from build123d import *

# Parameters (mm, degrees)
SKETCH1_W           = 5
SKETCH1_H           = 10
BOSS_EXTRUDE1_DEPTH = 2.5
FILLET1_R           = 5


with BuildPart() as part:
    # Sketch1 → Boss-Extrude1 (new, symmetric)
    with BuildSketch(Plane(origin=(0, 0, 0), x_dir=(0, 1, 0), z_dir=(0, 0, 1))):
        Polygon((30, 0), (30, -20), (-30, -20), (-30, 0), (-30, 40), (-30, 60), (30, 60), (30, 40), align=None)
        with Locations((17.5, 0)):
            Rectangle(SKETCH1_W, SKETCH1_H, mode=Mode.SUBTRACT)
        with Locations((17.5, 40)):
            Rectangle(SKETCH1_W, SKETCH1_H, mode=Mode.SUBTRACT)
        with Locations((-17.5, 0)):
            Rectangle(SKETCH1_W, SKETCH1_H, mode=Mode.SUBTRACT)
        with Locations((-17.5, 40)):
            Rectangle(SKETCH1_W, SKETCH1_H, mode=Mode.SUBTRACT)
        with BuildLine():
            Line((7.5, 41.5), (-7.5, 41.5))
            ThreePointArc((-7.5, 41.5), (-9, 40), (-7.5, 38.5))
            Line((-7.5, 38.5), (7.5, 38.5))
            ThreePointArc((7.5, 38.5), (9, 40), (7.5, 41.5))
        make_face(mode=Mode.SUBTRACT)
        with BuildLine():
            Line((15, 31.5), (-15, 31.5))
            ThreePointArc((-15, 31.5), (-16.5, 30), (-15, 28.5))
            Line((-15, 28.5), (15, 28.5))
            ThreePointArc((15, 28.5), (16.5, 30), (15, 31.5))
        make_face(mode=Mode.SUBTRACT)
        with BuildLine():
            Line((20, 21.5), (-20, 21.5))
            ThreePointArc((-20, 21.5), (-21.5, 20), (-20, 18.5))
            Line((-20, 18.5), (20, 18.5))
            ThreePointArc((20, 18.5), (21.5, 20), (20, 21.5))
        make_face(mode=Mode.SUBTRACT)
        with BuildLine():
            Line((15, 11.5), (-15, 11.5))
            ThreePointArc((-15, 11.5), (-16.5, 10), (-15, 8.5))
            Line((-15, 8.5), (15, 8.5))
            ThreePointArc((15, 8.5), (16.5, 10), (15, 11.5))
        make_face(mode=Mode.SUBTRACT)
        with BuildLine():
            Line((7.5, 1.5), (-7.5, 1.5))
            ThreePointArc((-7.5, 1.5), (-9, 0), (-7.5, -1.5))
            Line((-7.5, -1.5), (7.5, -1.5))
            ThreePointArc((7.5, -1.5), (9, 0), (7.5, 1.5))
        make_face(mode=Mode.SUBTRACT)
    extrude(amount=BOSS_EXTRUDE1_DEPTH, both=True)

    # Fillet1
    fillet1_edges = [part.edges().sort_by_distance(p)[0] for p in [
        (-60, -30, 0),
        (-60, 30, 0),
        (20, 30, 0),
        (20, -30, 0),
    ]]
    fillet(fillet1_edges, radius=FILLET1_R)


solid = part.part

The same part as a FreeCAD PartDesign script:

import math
import FreeCAD as App
import Part
import Sketcher
from FreeCAD import Vector
Q = App.Units.Quantity


def edges_at(feature, points):
    """Names of the edges that pass closest to the given points."""
    edges = feature.Shape.Edges
    near = lambda p: min(range(len(edges)), key=lambda i: edges[i].distToShape(Part.Vertex(*p))[0])
    return sorted({f"Edge{near(p) + 1}" for p in points})

doc = App.newDocument("Part")
body = doc.addObject("PartDesign::Body", "Body")

sketch1 = doc.addObject("Sketcher::SketchObject", "Sketch")
body.addObject(sketch1)
sketch1.AttachmentSupport = (doc.XY_Plane, [""])
sketch1.MapMode = "FlatFace"
sketch1.addGeometry([
    Part.LineSegment(Vector(20, 30, 0), Vector(-60, 30, 0)),
    Part.LineSegment(Vector(-60, 30, 0), Vector(-60, -30, 0)),
    Part.LineSegment(Vector(-60, -30, 0), Vector(20, -30, 0)),
    Part.LineSegment(Vector(20, -30, 0), Vector(20, 30, 0)),
    Part.LineSegment(Vector(5, 15, 0), Vector(-5, 15, 0)),
    Part.LineSegment(Vector(-5, 15, 0), Vector(-5, 20, 0)),
    Part.LineSegment(Vector(-5, 20, 0), Vector(5, 20, 0)),
    Part.LineSegment(Vector(5, 20, 0), Vector(5, 15, 0)),
    Part.ArcOfCircle(Part.Circle(Vector(0, 7.5, 0), Vector(0, 0, 1), 1.5), math.radians(0), math.radians(180)),
    Part.LineSegment(Vector(1.5, 7.5, 0), Vector(1.5, -7.5, 0)),
    Part.ArcOfCircle(Part.Circle(Vector(0, -7.5, 0), Vector(0, 0, 1), 1.5), math.radians(180), math.radians(360)),
    Part.LineSegment(Vector(-1.5, -7.5, 0), Vector(-1.5, 7.5, 0)),
    Part.LineSegment(Vector(5, -20, 0), Vector(-5, -20, 0)),
    Part.LineSegment(Vector(-5, -20, 0), Vector(-5, -15, 0)),
    Part.LineSegment(Vector(-5, -15, 0), Vector(5, -15, 0)),
    Part.LineSegment(Vector(5, -15, 0), Vector(5, -20, 0)),
    Part.ArcOfCircle(Part.Circle(Vector(-10, 15, 0), Vector(0, 0, 1), 1.5), math.radians(0), math.radians(180)),
    Part.LineSegment(Vector(-8.5, 15, 0), Vector(-8.5, -15, 0)),
    Part.ArcOfCircle(Part.Circle(Vector(-10, -15, 0), Vector(0, 0, 1), 1.5), math.radians(180), math.radians(360)),
    Part.LineSegment(Vector(-11.5, -15, 0), Vector(-11.5, 15, 0)),
    Part.LineSegment(Vector(-35, 15, 0), Vector(-45, 15, 0)),
    Part.LineSegment(Vector(-45, 15, 0), Vector(-45, 20, 0)),
    Part.LineSegment(Vector(-45, 20, 0), Vector(-35, 20, 0)),
    Part.LineSegment(Vector(-35, 20, 0), Vector(-35, 15, 0)),
    Part.ArcOfCircle(Part.Circle(Vector(-20, 20, 0), Vector(0, 0, 1), 1.5), math.radians(0), math.radians(180)),
    Part.LineSegment(Vector(-18.5, 20, 0), Vector(-18.5, -20, 0)),
    Part.ArcOfCircle(Part.Circle(Vector(-20, -20, 0), Vector(0, 0, 1), 1.5), math.radians(180), math.radians(360)),
    Part.LineSegment(Vector(-21.5, -20, 0), Vector(-21.5, 20, 0)),
    Part.ArcOfCircle(Part.Circle(Vector(-30, 15, 0), Vector(0, 0, 1), 1.5), math.radians(0), math.radians(180)),
    Part.LineSegment(Vector(-28.5, 15, 0), Vector(-28.5, -15, 0)),
    Part.ArcOfCircle(Part.Circle(Vector(-30, -15, 0), Vector(0, 0, 1), 1.5), math.radians(180), math.radians(360)),
    Part.LineSegment(Vector(-31.5, -15, 0), Vector(-31.5, 15, 0)),
    Part.ArcOfCircle(Part.Circle(Vector(-40, 7.5, 0), Vector(0, 0, 1), 1.5), math.radians(0), math.radians(180)),
    Part.LineSegment(Vector(-38.5, 7.5, 0), Vector(-38.5, -7.5, 0)),
    Part.ArcOfCircle(Part.Circle(Vector(-40, -7.5, 0), Vector(0, 0, 1), 1.5), math.radians(180), math.radians(360)),
    Part.LineSegment(Vector(-41.5, -7.5, 0), Vector(-41.5, 7.5, 0)),
    Part.LineSegment(Vector(-35, -20, 0), Vector(-45, -20, 0)),
    Part.LineSegment(Vector(-45, -20, 0), Vector(-45, -15, 0)),
    Part.LineSegment(Vector(-45, -15, 0), Vector(-35, -15, 0)),
    Part.LineSegment(Vector(-35, -15, 0), Vector(-35, -20, 0)),
], False)
sketch1.addConstraint([
    Sketcher.Constraint("Coincident", 0, 2, 1, 1),
    Sketcher.Constraint("Coincident", 1, 2, 2, 1),
    Sketcher.Constraint("Coincident", 2, 2, 3, 1),
    Sketcher.Constraint("Coincident", 3, 2, 0, 1),
    Sketcher.Constraint("Coincident", 4, 2, 5, 1),
    Sketcher.Constraint("Coincident", 5, 2, 6, 1),
    Sketcher.Constraint("Coincident", 6, 2, 7, 1),
    Sketcher.Constraint("Coincident", 7, 2, 4, 1),
    Sketcher.Constraint("Tangent", 8, 1, 9, 1),
    Sketcher.Constraint("Tangent", 9, 2, 10, 2),
    Sketcher.Constraint("Tangent", 10, 1, 11, 1),
    Sketcher.Constraint("Tangent", 11, 2, 8, 2),
    Sketcher.Constraint("Coincident", 12, 2, 13, 1),
    Sketcher.Constraint("Coincident", 13, 2, 14, 1),
    Sketcher.Constraint("Coincident", 14, 2, 15, 1),
    Sketcher.Constraint("Coincident", 15, 2, 12, 1),
    Sketcher.Constraint("Tangent", 16, 1, 17, 1),
    Sketcher.Constraint("Tangent", 17, 2, 18, 2),
    Sketcher.Constraint("Tangent", 18, 1, 19, 1),
    Sketcher.Constraint("Tangent", 19, 2, 16, 2),
    Sketcher.Constraint("Coincident", 20, 2, 21, 1),
    Sketcher.Constraint("Coincident", 21, 2, 22, 1),
    Sketcher.Constraint("Coincident", 22, 2, 23, 1),
    Sketcher.Constraint("Coincident", 23, 2, 20, 1),
    Sketcher.Constraint("Tangent", 24, 1, 25, 1),
    Sketcher.Constraint("Tangent", 25, 2, 26, 2),
    Sketcher.Constraint("Tangent", 26, 1, 27, 1),
    Sketcher.Constraint("Tangent", 27, 2, 24, 2),
    Sketcher.Constraint("Tangent", 28, 1, 29, 1),
    Sketcher.Constraint("Tangent", 29, 2, 30, 2),
    Sketcher.Constraint("Tangent", 30, 1, 31, 1),
    Sketcher.Constraint("Tangent", 31, 2, 28, 2),
    Sketcher.Constraint("Tangent", 32, 1, 33, 1),
    Sketcher.Constraint("Tangent", 33, 2, 34, 2),
    Sketcher.Constraint("Tangent", 34, 1, 35, 1),
    Sketcher.Constraint("Tangent", 35, 2, 32, 2),
    Sketcher.Constraint("Coincident", 36, 2, 37, 1),
    Sketcher.Constraint("Coincident", 37, 2, 38, 1),
    Sketcher.Constraint("Coincident", 38, 2, 39, 1),
    Sketcher.Constraint("Coincident", 39, 2, 36, 1),
    Sketcher.Constraint("Horizontal", 0),
    Sketcher.Constraint("Vertical", 1),
    Sketcher.Constraint("Horizontal", 2),
    Sketcher.Constraint("Vertical", 3),
    Sketcher.Constraint("Horizontal", 4),
    Sketcher.Constraint("Vertical", 5),
    Sketcher.Constraint("Horizontal", 6),
    Sketcher.Constraint("Vertical", 7),
    Sketcher.Constraint("Vertical", 9),
    Sketcher.Constraint("Vertical", 11),
    Sketcher.Constraint("Horizontal", 12),
    Sketcher.Constraint("Vertical", 13),
    Sketcher.Constraint("Horizontal", 14),
    Sketcher.Constraint("Vertical", 15),
    Sketcher.Constraint("Vertical", 17),
    Sketcher.Constraint("Vertical", 19),
    Sketcher.Constraint("Horizontal", 20),
    Sketcher.Constraint("Vertical", 21),
    Sketcher.Constraint("Horizontal", 22),
    Sketcher.Constraint("Vertical", 23),
    Sketcher.Constraint("Vertical", 25),
    Sketcher.Constraint("Vertical", 27),
    Sketcher.Constraint("Vertical", 29),
    Sketcher.Constraint("Vertical", 31),
    Sketcher.Constraint("Vertical", 33),
    Sketcher.Constraint("Vertical", 35),
    Sketcher.Constraint("Horizontal", 36),
    Sketcher.Constraint("Vertical", 37),
    Sketcher.Constraint("Horizontal", 38),
    Sketcher.Constraint("Vertical", 39),
    Sketcher.Constraint("Equal", 10, 16),
    Sketcher.Constraint("Equal", 18, 24),
    Sketcher.Constraint("Equal", 26, 28),
    Sketcher.Constraint("Equal", 30, 32),
    Sketcher.Constraint("Symmetric", 8, 3, 10, 3, -1, 1),
    Sketcher.Constraint("Symmetric", 6, 2, 12, 2, -1, 1),
    Sketcher.Constraint("Symmetric", 4, 2, 14, 2, -1, 1),
    Sketcher.Constraint("Symmetric", 21, 2, 36, 2, -1),
    Sketcher.Constraint("Symmetric", 23, 2, 38, 2, -1),
    Sketcher.Constraint("Horizontal", 16, 3, 28, 3),
    Sketcher.Constraint("Horizontal", 18, 3, 30, 3),
    Sketcher.Constraint("Horizontal", 8, 3, 32, 3),
    Sketcher.Constraint("Horizontal", 10, 3, 34, 3),
    Sketcher.Constraint("Horizontal", 28, 3, 4, 2),
    Sketcher.Constraint("Horizontal", 24, 3, 5, 2),
    Sketcher.Constraint("Horizontal", 26, 3, 12, 2),
    Sketcher.Constraint("Horizontal", 30, 3, 13, 2),
    Sketcher.Constraint("Horizontal", 19, 2, 20, 2),
    Sketcher.Constraint("Horizontal", 6, 2, 21, 2),
    Sketcher.Constraint("Vertical", 5, 2, 12, 2),
    Sketcher.Constraint("Equal", 14, 20),
    Sketcher.Constraint("Radius", 8, Q("1.5 mm")),
    Sketcher.Constraint("DistanceX", 0, 2, 0, 1, Q("80 mm")),
    Sketcher.Constraint("DistanceX", 4, 2, 4, 1, Q("10 mm")),
    Sketcher.Constraint("DistanceY", 1, 2, 1, 1, Q("60 mm")),
    Sketcher.Constraint("DistanceY", 5, 1, 5, 2, Q("5 mm")),
    Sketcher.Constraint("DistanceY", 9, 2, 9, 1, Q("15 mm")),
    Sketcher.Constraint("DistanceY", 17, 2, 17, 1, Q("30 mm")),
    Sketcher.Constraint("DistanceX", 16, 3, -1, 1, Q("10 mm")),
    Sketcher.Constraint("DistanceX", 24, 3, -1, 1, Q("20 mm")),
    Sketcher.Constraint("DistanceX", 28, 3, -1, 1, Q("30 mm")),
    Sketcher.Constraint("DistanceX", 32, 3, -1, 1, Q("40 mm")),
    Sketcher.Constraint("DistanceX", 0, 2, -1, 1, Q("60 mm")),
    Sketcher.Constraint("DistanceY", -1, 1, 0, 2, Q("30 mm")),
    Sketcher.Constraint("DistanceX", 20, 2, -1, 1, Q("45 mm")),
])
pad1 = doc.addObject("PartDesign::Pad", "Pad")
body.addObject(pad1)
pad1.Profile = sketch1
pad1.Length = 5
pad1.Midplane = True
doc.recompute()

fillet = doc.addObject("PartDesign::Fillet", "Fillet")
body.addObject(fillet)
fillet.Base = (pad1, edges_at(pad1, [
    (-60, -30, 0),
    (-60, 30, 0),
    (20, 30, 0),
    (20, -30, 0),
]))
fillet.Radius = 5

doc.recompute()
